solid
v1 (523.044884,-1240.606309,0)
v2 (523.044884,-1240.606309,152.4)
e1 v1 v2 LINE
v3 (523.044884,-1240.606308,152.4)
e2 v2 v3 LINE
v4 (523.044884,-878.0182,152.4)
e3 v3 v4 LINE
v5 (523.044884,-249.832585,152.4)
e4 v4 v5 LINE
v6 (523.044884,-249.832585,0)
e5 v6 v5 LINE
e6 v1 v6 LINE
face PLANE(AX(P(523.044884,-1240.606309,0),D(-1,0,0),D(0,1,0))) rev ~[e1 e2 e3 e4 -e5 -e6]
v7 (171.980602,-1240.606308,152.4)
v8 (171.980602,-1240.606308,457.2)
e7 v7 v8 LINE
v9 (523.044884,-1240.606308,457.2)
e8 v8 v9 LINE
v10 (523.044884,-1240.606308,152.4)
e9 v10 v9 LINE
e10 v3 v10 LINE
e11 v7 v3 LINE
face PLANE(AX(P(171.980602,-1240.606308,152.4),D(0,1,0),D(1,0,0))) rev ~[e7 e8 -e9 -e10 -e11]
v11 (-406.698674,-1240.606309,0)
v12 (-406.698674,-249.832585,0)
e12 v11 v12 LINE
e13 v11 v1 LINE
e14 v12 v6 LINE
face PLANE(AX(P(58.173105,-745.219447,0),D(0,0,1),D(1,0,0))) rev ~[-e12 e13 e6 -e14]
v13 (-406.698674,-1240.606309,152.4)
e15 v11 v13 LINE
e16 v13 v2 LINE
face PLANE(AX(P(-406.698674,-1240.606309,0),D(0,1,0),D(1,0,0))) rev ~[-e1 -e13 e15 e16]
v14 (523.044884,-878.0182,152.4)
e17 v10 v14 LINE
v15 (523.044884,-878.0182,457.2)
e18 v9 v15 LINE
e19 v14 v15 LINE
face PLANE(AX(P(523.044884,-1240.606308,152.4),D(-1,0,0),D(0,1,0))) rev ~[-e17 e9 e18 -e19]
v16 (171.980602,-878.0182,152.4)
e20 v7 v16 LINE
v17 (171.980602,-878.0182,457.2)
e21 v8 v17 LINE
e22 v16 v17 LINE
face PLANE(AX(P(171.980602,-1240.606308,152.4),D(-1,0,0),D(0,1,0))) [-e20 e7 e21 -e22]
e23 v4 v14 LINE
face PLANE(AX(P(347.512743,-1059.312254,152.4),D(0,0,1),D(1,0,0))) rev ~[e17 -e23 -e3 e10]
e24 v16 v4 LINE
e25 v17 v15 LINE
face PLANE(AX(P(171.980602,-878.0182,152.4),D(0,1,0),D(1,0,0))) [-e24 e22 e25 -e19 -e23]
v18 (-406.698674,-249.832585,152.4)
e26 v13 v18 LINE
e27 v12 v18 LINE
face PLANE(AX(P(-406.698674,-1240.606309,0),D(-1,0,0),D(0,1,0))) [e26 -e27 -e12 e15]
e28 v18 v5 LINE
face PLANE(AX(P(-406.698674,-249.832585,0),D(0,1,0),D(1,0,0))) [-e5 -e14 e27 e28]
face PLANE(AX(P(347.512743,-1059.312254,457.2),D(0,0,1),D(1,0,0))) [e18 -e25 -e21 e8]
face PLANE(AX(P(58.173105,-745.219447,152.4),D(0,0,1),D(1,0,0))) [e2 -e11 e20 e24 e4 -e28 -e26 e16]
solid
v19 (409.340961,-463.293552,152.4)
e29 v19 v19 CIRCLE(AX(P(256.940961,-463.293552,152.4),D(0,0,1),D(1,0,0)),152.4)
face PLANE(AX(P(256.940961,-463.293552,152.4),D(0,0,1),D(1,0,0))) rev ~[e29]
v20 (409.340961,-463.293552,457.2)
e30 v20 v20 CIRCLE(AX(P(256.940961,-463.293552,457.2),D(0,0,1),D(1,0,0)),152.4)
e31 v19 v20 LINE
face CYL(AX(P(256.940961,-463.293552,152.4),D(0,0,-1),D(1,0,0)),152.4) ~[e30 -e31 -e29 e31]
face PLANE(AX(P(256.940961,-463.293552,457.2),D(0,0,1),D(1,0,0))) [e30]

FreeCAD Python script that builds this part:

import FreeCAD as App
import Part
import Sketcher

V = App.Vector
Q = App.Units.Quantity


def add_polygon(sketch, points):
    """Adds a closed chain of lines whose ends are joined by coincident constraints."""
    first, n = sketch.GeometryCount, len(points)
    for a, b in zip(points, points[1:] + points[:1]):
        sketch.addGeometry(Part.LineSegment(App.Vector(*a, 0), App.Vector(*b, 0)), False)
    for i in range(n):
        sketch.addConstraint(Sketcher.Constraint("Coincident", first + i, 2, first + (i + 1) % n, 1))

doc = App.newDocument("Part")
body = doc.addObject("PartDesign::Body", "Body")

# Sketch on XY plane
sketch1 = body.newObject("Sketcher::SketchObject", "Sketch")
sketch1.AttachmentSupport = (doc.getObject("XY_Plane"), [""])
sketch1.MapMode = "FlatFace"
add_polygon(sketch1, [(-407, -250), (-407, -1241), (523, -1241), (523, -250)])  # lines 0-3
sketch1.addConstraint(Sketcher.Constraint("Vertical", 0))
sketch1.addConstraint(Sketcher.Constraint("Horizontal", 1))
sketch1.addConstraint(Sketcher.Constraint("Vertical", 2))
sketch1.addConstraint(Sketcher.Constraint("Horizontal", 3))
sketch1.addConstraint(Sketcher.Constraint("DistanceX", 1, 1, 1, 2, 929.743558))
sketch1.addConstraint(Sketcher.Constraint("DistanceY", 0, 2, 0, 1, 990.773723))
sketch1.addConstraint(Sketcher.Constraint("DistanceY", 0, 2, -1, 1, 1240.606309))
sketch1.addConstraint(Sketcher.Constraint("DistanceX", 0, 2, -1, 1, 406.698674))
pad1 = body.newObject("PartDesign::Pad", "Pad")
pad1.Profile = sketch1
pad1.Length = Q("6 in")

# Sketch on XY plane
sketch2 = body.newObject("Sketcher::SketchObject", "Sketch001")
sketch2.AttachmentSupport = (doc.getObject("XY_Plane"), [""])
sketch2.MapMode = "FlatFace"
sketch2.AttachmentOffset = App.Placement(V(0, 0, 6 * 25.4), App.Rotation())
add_polygon(sketch2, [(172, -878), (172, -1241), (523, -1241), (523, -878)])  # lines 0-3
sketch2.addConstraint(Sketcher.Constraint("Vertical", 0))
sketch2.addConstraint(Sketcher.Constraint("Horizontal", 1))
sketch2.addConstraint(Sketcher.Constraint("Vertical", 2))
sketch2.addConstraint(Sketcher.Constraint("Horizontal", 3))
sketch2.addConstraint(Sketcher.Constraint("DistanceX", -1, 1, 0, 2, 171.980602))
sketch2.addConstraint(Sketcher.Constraint("DistanceY", 2, 2, -1, 1, 878.0182))
sketch2.addConstraint(Sketcher.Constraint("DistanceX", 1, 1, 1, 2, 351.064283))
sketch2.addConstraint(Sketcher.Constraint("DistanceY", 0, 2, 0, 1, 362.588108))
pad2 = body.newObject("PartDesign::Pad", "Pad001")
pad2.Profile = sketch2
pad2.Length = Q("12 in")
body2 = doc.addObject("PartDesign::Body", "Body001")

# Sketch on XY plane
sketch3 = body2.newObject("Sketcher::SketchObject", "Sketch002")
sketch3.AttachmentSupport = (doc.getObject("XY_Plane001"), [""])
sketch3.MapMode = "FlatFace"
sketch3.AttachmentOffset = App.Placement(V(0, 0, 6 * 25.4), App.Rotation())
sketch3.addGeometry(Part.Circle(V(257, -463, 0), V(0, 0, 1), 152), False)
sketch3.addConstraint(Sketcher.Constraint("Diameter", 0, Q("12 in")))
sketch3.addConstraint(Sketcher.Constraint("DistanceX", -1, 1, 0, 3, 256.940961))
sketch3.addConstraint(Sketcher.Constraint("DistanceY", 0, 3, -1, 1, 463.293552))
pad3 = body2.newObject("PartDesign::Pad", "Pad002")
pad3.Profile = sketch3
pad3.Length = Q("12 in")

doc.recompute()
